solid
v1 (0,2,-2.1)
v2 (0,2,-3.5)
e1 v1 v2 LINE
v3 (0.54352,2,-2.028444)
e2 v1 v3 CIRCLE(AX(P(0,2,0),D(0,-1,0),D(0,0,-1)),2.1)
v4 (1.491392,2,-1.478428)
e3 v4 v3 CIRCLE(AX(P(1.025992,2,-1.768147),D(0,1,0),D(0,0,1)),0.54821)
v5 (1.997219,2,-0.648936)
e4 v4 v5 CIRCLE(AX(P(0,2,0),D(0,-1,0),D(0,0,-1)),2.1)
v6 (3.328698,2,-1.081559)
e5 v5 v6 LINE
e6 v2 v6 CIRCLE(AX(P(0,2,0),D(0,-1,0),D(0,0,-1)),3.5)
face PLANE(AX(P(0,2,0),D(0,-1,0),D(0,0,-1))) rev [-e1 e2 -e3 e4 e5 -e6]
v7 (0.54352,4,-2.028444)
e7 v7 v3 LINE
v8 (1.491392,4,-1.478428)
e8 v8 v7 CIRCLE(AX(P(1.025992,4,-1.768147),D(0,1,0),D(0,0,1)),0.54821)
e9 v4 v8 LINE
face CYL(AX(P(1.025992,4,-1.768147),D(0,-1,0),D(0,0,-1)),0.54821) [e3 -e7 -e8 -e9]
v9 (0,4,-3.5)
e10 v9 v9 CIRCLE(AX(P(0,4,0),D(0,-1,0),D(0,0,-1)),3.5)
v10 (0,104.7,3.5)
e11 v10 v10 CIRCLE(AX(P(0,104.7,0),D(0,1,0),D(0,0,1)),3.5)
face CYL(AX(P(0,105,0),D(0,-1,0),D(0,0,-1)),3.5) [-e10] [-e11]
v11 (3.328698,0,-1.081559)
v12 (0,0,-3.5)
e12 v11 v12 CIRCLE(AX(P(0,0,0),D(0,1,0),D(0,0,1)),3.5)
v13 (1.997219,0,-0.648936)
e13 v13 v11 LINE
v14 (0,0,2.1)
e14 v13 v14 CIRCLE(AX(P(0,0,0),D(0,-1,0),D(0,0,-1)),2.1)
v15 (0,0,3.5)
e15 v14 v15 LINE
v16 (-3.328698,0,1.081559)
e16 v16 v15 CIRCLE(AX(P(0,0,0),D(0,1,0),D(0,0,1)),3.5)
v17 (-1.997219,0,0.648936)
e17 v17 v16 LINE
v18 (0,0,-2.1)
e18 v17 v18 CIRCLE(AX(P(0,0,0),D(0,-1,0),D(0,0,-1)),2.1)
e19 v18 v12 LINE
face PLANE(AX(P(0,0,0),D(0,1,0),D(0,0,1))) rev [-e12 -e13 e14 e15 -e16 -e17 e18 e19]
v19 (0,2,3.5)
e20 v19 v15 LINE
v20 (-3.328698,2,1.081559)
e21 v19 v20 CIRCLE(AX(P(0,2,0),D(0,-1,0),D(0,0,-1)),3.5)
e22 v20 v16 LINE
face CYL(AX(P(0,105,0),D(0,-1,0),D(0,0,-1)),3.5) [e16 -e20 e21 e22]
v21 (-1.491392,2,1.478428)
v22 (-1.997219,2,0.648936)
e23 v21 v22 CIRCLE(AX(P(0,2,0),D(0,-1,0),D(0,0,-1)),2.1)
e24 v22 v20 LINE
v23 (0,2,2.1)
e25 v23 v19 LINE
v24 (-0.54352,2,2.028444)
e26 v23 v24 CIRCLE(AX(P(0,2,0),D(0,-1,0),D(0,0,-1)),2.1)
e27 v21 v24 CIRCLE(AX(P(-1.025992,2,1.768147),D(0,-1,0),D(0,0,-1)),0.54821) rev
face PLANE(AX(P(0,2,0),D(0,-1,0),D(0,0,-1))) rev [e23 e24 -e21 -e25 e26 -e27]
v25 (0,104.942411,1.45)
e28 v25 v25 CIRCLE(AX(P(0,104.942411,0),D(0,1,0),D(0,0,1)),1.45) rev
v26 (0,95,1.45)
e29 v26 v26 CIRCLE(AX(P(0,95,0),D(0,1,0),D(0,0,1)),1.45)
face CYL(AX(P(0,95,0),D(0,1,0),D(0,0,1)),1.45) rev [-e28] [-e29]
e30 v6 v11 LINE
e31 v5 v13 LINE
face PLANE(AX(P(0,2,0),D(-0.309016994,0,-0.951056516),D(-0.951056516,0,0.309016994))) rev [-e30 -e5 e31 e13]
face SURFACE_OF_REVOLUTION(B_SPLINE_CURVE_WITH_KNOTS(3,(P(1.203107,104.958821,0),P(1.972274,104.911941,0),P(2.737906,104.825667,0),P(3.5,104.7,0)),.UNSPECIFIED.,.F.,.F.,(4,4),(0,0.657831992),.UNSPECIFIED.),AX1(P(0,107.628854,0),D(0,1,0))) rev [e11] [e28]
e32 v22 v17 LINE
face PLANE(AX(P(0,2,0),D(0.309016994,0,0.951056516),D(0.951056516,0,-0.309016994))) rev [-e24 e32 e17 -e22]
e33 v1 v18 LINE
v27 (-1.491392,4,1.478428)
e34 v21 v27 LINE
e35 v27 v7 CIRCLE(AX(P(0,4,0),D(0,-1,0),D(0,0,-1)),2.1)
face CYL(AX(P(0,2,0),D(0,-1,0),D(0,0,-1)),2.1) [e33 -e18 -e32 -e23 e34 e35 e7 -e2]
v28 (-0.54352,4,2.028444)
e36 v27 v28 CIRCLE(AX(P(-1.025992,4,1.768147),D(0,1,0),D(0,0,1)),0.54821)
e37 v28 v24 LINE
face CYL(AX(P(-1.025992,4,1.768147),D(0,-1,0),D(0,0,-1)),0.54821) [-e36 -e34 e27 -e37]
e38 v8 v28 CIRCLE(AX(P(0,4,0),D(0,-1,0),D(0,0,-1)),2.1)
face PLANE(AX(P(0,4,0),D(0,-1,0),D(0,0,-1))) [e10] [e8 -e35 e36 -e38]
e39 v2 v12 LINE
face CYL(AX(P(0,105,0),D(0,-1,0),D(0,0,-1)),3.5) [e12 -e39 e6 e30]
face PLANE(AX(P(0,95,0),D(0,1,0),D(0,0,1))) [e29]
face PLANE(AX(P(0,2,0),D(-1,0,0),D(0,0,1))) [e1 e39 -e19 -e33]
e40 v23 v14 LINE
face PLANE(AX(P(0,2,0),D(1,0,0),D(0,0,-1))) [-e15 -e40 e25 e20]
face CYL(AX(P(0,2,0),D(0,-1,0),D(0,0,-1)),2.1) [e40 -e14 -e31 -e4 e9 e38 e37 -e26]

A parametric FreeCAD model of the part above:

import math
import FreeCAD as App
import Part
import Sketcher
from FreeCAD import Vector
Q = App.Units.Quantity

doc = App.newDocument("Part")
body = doc.addObject("PartDesign::Body", "Body")

sketch1 = body.newObject("Sketcher::SketchObject", "Sketch")
sketch1.AttachmentSupport = (doc.getObject("XZ_Plane"), [""])
sketch1.MapMode = "FlatFace"
sketch1.addGeometry(Part.Circle(Vector(0, 0, 0), Vector(0, 0, 1), 3.5), False)
sketch1.addConstraint(Sketcher.Constraint("Coincident", 0, 3, -1, 1))
sketch1.addConstraint(Sketcher.Constraint("Diameter", 0, Q("7 mm")))
pad1 = body.newObject("PartDesign::Pad", "Pad")
pad1.Profile = sketch1
pad1.Length = 105
pad1.Reversed = True

sketch2 = body.newObject("Sketcher::SketchObject", "Sketch001")
sketch2.AttachmentSupport = (doc.getObject("XZ_Plane"), [""])
sketch2.MapMode = "FlatFace"
sketch2.addGeometry(Part.LineSegment(Vector(0, 3.5, 0), Vector(0, 2.1, 0)), False)
sketch2.addGeometry(Part.ArcOfCircle(Part.Circle(Vector(0, 0, 0), Vector(0, 0, 1), 2.1), math.radians(-18), math.radians(90)), False)
sketch2.addGeometry(Part.LineSegment(Vector(1.997219, -0.648936, 0), Vector(3.328698, -1.081559, 0)), False)
sketch2.addGeometry(Part.ArcOfCircle(Part.Circle(Vector(0, 0, 0), Vector(0, 0, 1), 3.5), math.radians(-18), math.radians(0)), False)
sketch2.addGeometry(Part.ArcOfCircle(Part.Circle(Vector(0, 0, 0), Vector(0, 0, 1), 3.5), math.radians(0), math.radians(90)), False)
sketch2.addGeometry(Part.ArcOfCircle(Part.Circle(Vector(0, 0, 0), Vector(0, 0, 1), 2.1), math.radians(162), math.radians(270)), False)
sketch2.addGeometry(Part.LineSegment(Vector(-1.997219, 0.648936, 0), Vector(-3.328698, 1.081559, 0)), False)
sketch2.addGeometry(Part.ArcOfCircle(Part.Circle(Vector(0, 0, 0), Vector(0, 0, 1), 3.5), math.radians(162), math.radians(270)), False)
sketch2.addGeometry(Part.LineSegment(Vector(0, -3.5, 0), Vector(0, -2.1, 0)), False)
sketch2.addConstraint(Sketcher.Constraint("Coincident", 0, 2, 1, 2))
sketch2.addConstraint(Sketcher.Constraint("Coincident", 1, 1, 2, 1))
sketch2.addConstraint(Sketcher.Constraint("Coincident", 2, 2, 3, 1))
sketch2.addConstraint(Sketcher.Constraint("Tangent", 3, 2, 4, 1))
sketch2.addConstraint(Sketcher.Constraint("Coincident", 4, 2, 0, 1))
sketch2.addConstraint(Sketcher.Constraint("Coincident", 5, 1, 6, 1))
sketch2.addConstraint(Sketcher.Constraint("Coincident", 6, 2, 7, 1))
sketch2.addConstraint(Sketcher.Constraint("Coincident", 7, 2, 8, 1))
sketch2.addConstraint(Sketcher.Constraint("Coincident", 8, 2, 5, 2))
sketch2.addConstraint(Sketcher.Constraint("Vertical", 0))
sketch2.addConstraint(Sketcher.Constraint("Vertical", 8))
sketch2.addConstraint(Sketcher.Constraint("Coincident", 1, 3, -1, 1))
sketch2.addConstraint(Sketcher.Constraint("Coincident", 3, 3, -1, 1))
sketch2.addConstraint(Sketcher.Constraint("Coincident", 5, 3, -1, 1))
sketch2.addConstraint(Sketcher.Constraint("Coincident", 7, 3, -1, 1))
sketch2.addConstraint(Sketcher.Constraint("Equal", 3, 4))
sketch2.addConstraint(Sketcher.Constraint("Equal", 1, 5))
sketch2.addConstraint(Sketcher.Constraint("Equal", 4, 7))
sketch2.addConstraint(Sketcher.Constraint("PointOnObject", 0, 2, -2))
sketch2.addConstraint(Sketcher.Constraint("PointOnObject", 3, 2, -1))
sketch2.addConstraint(Sketcher.Constraint("PointOnObject", 7, 2, -2))
sketch2.addConstraint(Sketcher.Constraint("Parallel", 2, 6))
sketch2.addConstraint(Sketcher.Constraint("Radius", 1, Q("2.1 mm")))
sketch2.addConstraint(Sketcher.Constraint("Radius", 3, Q("3.5 mm")))
sketch2.addConstraint(Sketcher.Constraint("Angle", 2, Q("-18 deg")))
sketch2.addConstraint(Sketcher.Constraint("DistanceX", -1, 1, 1, 1, Q("1.997219 mm")))
sketch2.addConstraint(Sketcher.Constraint("DistanceX", 5, 1, -1, 1, Q("1.997219 mm")))
pocket1 = body.newObject("PartDesign::Pocket", "Pocket")
pocket1.Profile = sketch2
pocket1.Length = 2

sketch3 = body.newObject("Sketcher::SketchObject", "Sketch002")
sketch3.AttachmentSupport = (doc.getObject("XZ_Plane"), [""])
sketch3.MapMode = "FlatFace"
sketch3.AttachmentOffset = App.Placement(Vector(0, 0, -2), App.Rotation())
sketch3.addGeometry(Part.Circle(Vector(0, 0, 0), Vector(0, 0, 1), 3.5), False)
sketch3.addGeometry(Part.Circle(Vector(0, 0, 0), Vector(0, 0, 1), 2.1), False)
sketch3.addConstraint(Sketcher.Constraint("Coincident", 0, 3, -1, 1))
sketch3.addConstraint(Sketcher.Constraint("Coincident", 1, 3, -1, 1))
sketch3.addConstraint(Sketcher.Constraint("Diameter", 0, Q("7 mm")))
sketch3.addConstraint(Sketcher.Constraint("Diameter", 1, Q("4.2 mm")))
pocket2 = body.newObject("PartDesign::Pocket", "Pocket001")
pocket2.Profile = sketch3
pocket2.Length = 2

sketch4 = body.newObject("Sketcher::SketchObject", "Sketch003")
sketch4.AttachmentSupport = (doc.getObject("XZ_Plane"), [""])
sketch4.MapMode = "FlatFace"
sketch4.AttachmentOffset = App.Placement(Vector(0, 0, -2), App.Rotation())
sketch4.addGeometry(Part.ArcOfCircle(Part.Circle(Vector(-1.025992, 1.768147, 0), Vector(0, 0, 1), 0.54821), math.radians(0), math.radians(28.347177)), False)
sketch4.addGeometry(Part.ArcOfCircle(Part.Circle(Vector(-1.025992, 1.768147, 0), Vector(0, 0, 1), 0.54821), math.radians(-148.097061), math.radians(0)), False)
sketch4.addGeometry(Part.ArcOfCircle(Part.Circle(Vector(-1.025992, 1.768147, 0), Vector(0, 0, 1), 0.54821), math.radians(28.347176), math.radians(211.902939)), False)
sketch4.addGeometry(Part.Circle(Vector(1.025992, -1.768147, 0), Vector(0, 0, 1), 0.54821), False)
sketch4.addConstraint(Sketcher.Constraint("Tangent", 0, 1, 1, 2))
sketch4.addConstraint(Sketcher.Constraint("Tangent", 1, 1, 2, 2))
sketch4.addConstraint(Sketcher.Constraint("Tangent", 2, 1, 0, 2))
sketch4.addConstraint(Sketcher.Constraint("Equal", 2, 3))
sketch4.addConstraint(Sketcher.Constraint("Symmetric", 0, 3, 3, 3, -1, 1))
sketch4.addConstraint(Sketcher.Constraint("Horizontal", 2, 3, 0, 1))
sketch4.addConstraint(Sketcher.Constraint("Diameter", 3, Q("1.09642 mm")))
sketch4.addConstraint(Sketcher.Constraint("DistanceX", 1, 1, 2, 3, Q("0.4654 mm")))
sketch4.addConstraint(Sketcher.Constraint("DistanceX", 2, 1, -1, 1, Q("0.54352 mm")))
sketch4.addConstraint(Sketcher.Constraint("DistanceX", 0, 3, -1, 1, Q("1.025992 mm")))
sketch4.addConstraint(Sketcher.Constraint("DistanceY", -1, 1, 0, 3, Q("1.768147 mm")))
pad2 = body.newObject("PartDesign::Pad", "Pad001")
pad2.Profile = sketch4
pad2.Length = 2
pad2.Reversed = True

sketch5 = body.newObject("Sketcher::SketchObject", "Sketch004")
sketch5.AttachmentSupport = (doc.getObject("XZ_Plane"), [""])
sketch5.MapMode = "FlatFace"
sketch5.AttachmentOffset = App.Placement(Vector(0, 0, -105), App.Rotation())
sketch5.addGeometry(Part.Circle(Vector(0, 0, 0), Vector(0, 0, 1), 1.45), False)
sketch5.addConstraint(Sketcher.Constraint("Coincident", 0, 3, -1, 1))
sketch5.addConstraint(Sketcher.Constraint("Diameter", 0, Q("2.9 mm")))
pocket3 = body.newObject("PartDesign::Pocket", "Pocket002")
pocket3.Profile = sketch5
pocket3.Length = 10
pocket3.Reversed = True

sketch6 = body.newObject("Sketcher::SketchObject", "Sketch005")
sketch6.AttachmentSupport = (doc.getObject("XY_Plane"), [""])
sketch6.MapMode = "FlatFace"
sketch6.addGeometry(Part.LineSegment(Vector(1.203107, 105, 0), Vector(1.203107, 104.958821, 0)), False)
sketch6.addGeometry(Part.BSplineCurve([Vector(3.5, 104.7, 0), Vector(2.737906, 104.825667, 0), Vector(1.972274, 104.911941, 0), Vector(1.203107, 104.958821, 0)], [4, 4], [0, 0.657831992], False, 3, [1, 1, 1, 1], False), False)
sketch6.addGeometry(Part.LineSegment(Vector(3.5, 104.7, 0), Vector(3.5, 105, 0)), False)
sketch6.addGeometry(Part.LineSegment(Vector(3.5, 105, 0), Vector(1.203107, 105, 0)), False)
sketch6.addConstraint(Sketcher.Constraint("Block", 1))
sketch6.addConstraint(Sketcher.Constraint("Coincident", 0, 2, 1, 2))
sketch6.addConstraint(Sketcher.Constraint("Coincident", 1, 1, 2, 1))
sketch6.addConstraint(Sketcher.Constraint("Coincident", 2, 2, 3, 1))
sketch6.addConstraint(Sketcher.Constraint("Coincident", 3, 2, 0, 1))
sketch6.addConstraint(Sketcher.Constraint("Vertical", 0))
sketch6.addConstraint(Sketcher.Constraint("Vertical", 2))
sketch6.addConstraint(Sketcher.Constraint("Horizontal", 3))
sketch6.addConstraint(Sketcher.Constraint("DistanceY", 2, 1, 2, 2, Q("0.3 mm")))
groove = body.newObject("PartDesign::Groove", "Groove")
groove.Profile = sketch6
groove.ReferenceAxis = (sketch6, ["V_Axis"])
groove.Angle = 360

doc.recompute()
